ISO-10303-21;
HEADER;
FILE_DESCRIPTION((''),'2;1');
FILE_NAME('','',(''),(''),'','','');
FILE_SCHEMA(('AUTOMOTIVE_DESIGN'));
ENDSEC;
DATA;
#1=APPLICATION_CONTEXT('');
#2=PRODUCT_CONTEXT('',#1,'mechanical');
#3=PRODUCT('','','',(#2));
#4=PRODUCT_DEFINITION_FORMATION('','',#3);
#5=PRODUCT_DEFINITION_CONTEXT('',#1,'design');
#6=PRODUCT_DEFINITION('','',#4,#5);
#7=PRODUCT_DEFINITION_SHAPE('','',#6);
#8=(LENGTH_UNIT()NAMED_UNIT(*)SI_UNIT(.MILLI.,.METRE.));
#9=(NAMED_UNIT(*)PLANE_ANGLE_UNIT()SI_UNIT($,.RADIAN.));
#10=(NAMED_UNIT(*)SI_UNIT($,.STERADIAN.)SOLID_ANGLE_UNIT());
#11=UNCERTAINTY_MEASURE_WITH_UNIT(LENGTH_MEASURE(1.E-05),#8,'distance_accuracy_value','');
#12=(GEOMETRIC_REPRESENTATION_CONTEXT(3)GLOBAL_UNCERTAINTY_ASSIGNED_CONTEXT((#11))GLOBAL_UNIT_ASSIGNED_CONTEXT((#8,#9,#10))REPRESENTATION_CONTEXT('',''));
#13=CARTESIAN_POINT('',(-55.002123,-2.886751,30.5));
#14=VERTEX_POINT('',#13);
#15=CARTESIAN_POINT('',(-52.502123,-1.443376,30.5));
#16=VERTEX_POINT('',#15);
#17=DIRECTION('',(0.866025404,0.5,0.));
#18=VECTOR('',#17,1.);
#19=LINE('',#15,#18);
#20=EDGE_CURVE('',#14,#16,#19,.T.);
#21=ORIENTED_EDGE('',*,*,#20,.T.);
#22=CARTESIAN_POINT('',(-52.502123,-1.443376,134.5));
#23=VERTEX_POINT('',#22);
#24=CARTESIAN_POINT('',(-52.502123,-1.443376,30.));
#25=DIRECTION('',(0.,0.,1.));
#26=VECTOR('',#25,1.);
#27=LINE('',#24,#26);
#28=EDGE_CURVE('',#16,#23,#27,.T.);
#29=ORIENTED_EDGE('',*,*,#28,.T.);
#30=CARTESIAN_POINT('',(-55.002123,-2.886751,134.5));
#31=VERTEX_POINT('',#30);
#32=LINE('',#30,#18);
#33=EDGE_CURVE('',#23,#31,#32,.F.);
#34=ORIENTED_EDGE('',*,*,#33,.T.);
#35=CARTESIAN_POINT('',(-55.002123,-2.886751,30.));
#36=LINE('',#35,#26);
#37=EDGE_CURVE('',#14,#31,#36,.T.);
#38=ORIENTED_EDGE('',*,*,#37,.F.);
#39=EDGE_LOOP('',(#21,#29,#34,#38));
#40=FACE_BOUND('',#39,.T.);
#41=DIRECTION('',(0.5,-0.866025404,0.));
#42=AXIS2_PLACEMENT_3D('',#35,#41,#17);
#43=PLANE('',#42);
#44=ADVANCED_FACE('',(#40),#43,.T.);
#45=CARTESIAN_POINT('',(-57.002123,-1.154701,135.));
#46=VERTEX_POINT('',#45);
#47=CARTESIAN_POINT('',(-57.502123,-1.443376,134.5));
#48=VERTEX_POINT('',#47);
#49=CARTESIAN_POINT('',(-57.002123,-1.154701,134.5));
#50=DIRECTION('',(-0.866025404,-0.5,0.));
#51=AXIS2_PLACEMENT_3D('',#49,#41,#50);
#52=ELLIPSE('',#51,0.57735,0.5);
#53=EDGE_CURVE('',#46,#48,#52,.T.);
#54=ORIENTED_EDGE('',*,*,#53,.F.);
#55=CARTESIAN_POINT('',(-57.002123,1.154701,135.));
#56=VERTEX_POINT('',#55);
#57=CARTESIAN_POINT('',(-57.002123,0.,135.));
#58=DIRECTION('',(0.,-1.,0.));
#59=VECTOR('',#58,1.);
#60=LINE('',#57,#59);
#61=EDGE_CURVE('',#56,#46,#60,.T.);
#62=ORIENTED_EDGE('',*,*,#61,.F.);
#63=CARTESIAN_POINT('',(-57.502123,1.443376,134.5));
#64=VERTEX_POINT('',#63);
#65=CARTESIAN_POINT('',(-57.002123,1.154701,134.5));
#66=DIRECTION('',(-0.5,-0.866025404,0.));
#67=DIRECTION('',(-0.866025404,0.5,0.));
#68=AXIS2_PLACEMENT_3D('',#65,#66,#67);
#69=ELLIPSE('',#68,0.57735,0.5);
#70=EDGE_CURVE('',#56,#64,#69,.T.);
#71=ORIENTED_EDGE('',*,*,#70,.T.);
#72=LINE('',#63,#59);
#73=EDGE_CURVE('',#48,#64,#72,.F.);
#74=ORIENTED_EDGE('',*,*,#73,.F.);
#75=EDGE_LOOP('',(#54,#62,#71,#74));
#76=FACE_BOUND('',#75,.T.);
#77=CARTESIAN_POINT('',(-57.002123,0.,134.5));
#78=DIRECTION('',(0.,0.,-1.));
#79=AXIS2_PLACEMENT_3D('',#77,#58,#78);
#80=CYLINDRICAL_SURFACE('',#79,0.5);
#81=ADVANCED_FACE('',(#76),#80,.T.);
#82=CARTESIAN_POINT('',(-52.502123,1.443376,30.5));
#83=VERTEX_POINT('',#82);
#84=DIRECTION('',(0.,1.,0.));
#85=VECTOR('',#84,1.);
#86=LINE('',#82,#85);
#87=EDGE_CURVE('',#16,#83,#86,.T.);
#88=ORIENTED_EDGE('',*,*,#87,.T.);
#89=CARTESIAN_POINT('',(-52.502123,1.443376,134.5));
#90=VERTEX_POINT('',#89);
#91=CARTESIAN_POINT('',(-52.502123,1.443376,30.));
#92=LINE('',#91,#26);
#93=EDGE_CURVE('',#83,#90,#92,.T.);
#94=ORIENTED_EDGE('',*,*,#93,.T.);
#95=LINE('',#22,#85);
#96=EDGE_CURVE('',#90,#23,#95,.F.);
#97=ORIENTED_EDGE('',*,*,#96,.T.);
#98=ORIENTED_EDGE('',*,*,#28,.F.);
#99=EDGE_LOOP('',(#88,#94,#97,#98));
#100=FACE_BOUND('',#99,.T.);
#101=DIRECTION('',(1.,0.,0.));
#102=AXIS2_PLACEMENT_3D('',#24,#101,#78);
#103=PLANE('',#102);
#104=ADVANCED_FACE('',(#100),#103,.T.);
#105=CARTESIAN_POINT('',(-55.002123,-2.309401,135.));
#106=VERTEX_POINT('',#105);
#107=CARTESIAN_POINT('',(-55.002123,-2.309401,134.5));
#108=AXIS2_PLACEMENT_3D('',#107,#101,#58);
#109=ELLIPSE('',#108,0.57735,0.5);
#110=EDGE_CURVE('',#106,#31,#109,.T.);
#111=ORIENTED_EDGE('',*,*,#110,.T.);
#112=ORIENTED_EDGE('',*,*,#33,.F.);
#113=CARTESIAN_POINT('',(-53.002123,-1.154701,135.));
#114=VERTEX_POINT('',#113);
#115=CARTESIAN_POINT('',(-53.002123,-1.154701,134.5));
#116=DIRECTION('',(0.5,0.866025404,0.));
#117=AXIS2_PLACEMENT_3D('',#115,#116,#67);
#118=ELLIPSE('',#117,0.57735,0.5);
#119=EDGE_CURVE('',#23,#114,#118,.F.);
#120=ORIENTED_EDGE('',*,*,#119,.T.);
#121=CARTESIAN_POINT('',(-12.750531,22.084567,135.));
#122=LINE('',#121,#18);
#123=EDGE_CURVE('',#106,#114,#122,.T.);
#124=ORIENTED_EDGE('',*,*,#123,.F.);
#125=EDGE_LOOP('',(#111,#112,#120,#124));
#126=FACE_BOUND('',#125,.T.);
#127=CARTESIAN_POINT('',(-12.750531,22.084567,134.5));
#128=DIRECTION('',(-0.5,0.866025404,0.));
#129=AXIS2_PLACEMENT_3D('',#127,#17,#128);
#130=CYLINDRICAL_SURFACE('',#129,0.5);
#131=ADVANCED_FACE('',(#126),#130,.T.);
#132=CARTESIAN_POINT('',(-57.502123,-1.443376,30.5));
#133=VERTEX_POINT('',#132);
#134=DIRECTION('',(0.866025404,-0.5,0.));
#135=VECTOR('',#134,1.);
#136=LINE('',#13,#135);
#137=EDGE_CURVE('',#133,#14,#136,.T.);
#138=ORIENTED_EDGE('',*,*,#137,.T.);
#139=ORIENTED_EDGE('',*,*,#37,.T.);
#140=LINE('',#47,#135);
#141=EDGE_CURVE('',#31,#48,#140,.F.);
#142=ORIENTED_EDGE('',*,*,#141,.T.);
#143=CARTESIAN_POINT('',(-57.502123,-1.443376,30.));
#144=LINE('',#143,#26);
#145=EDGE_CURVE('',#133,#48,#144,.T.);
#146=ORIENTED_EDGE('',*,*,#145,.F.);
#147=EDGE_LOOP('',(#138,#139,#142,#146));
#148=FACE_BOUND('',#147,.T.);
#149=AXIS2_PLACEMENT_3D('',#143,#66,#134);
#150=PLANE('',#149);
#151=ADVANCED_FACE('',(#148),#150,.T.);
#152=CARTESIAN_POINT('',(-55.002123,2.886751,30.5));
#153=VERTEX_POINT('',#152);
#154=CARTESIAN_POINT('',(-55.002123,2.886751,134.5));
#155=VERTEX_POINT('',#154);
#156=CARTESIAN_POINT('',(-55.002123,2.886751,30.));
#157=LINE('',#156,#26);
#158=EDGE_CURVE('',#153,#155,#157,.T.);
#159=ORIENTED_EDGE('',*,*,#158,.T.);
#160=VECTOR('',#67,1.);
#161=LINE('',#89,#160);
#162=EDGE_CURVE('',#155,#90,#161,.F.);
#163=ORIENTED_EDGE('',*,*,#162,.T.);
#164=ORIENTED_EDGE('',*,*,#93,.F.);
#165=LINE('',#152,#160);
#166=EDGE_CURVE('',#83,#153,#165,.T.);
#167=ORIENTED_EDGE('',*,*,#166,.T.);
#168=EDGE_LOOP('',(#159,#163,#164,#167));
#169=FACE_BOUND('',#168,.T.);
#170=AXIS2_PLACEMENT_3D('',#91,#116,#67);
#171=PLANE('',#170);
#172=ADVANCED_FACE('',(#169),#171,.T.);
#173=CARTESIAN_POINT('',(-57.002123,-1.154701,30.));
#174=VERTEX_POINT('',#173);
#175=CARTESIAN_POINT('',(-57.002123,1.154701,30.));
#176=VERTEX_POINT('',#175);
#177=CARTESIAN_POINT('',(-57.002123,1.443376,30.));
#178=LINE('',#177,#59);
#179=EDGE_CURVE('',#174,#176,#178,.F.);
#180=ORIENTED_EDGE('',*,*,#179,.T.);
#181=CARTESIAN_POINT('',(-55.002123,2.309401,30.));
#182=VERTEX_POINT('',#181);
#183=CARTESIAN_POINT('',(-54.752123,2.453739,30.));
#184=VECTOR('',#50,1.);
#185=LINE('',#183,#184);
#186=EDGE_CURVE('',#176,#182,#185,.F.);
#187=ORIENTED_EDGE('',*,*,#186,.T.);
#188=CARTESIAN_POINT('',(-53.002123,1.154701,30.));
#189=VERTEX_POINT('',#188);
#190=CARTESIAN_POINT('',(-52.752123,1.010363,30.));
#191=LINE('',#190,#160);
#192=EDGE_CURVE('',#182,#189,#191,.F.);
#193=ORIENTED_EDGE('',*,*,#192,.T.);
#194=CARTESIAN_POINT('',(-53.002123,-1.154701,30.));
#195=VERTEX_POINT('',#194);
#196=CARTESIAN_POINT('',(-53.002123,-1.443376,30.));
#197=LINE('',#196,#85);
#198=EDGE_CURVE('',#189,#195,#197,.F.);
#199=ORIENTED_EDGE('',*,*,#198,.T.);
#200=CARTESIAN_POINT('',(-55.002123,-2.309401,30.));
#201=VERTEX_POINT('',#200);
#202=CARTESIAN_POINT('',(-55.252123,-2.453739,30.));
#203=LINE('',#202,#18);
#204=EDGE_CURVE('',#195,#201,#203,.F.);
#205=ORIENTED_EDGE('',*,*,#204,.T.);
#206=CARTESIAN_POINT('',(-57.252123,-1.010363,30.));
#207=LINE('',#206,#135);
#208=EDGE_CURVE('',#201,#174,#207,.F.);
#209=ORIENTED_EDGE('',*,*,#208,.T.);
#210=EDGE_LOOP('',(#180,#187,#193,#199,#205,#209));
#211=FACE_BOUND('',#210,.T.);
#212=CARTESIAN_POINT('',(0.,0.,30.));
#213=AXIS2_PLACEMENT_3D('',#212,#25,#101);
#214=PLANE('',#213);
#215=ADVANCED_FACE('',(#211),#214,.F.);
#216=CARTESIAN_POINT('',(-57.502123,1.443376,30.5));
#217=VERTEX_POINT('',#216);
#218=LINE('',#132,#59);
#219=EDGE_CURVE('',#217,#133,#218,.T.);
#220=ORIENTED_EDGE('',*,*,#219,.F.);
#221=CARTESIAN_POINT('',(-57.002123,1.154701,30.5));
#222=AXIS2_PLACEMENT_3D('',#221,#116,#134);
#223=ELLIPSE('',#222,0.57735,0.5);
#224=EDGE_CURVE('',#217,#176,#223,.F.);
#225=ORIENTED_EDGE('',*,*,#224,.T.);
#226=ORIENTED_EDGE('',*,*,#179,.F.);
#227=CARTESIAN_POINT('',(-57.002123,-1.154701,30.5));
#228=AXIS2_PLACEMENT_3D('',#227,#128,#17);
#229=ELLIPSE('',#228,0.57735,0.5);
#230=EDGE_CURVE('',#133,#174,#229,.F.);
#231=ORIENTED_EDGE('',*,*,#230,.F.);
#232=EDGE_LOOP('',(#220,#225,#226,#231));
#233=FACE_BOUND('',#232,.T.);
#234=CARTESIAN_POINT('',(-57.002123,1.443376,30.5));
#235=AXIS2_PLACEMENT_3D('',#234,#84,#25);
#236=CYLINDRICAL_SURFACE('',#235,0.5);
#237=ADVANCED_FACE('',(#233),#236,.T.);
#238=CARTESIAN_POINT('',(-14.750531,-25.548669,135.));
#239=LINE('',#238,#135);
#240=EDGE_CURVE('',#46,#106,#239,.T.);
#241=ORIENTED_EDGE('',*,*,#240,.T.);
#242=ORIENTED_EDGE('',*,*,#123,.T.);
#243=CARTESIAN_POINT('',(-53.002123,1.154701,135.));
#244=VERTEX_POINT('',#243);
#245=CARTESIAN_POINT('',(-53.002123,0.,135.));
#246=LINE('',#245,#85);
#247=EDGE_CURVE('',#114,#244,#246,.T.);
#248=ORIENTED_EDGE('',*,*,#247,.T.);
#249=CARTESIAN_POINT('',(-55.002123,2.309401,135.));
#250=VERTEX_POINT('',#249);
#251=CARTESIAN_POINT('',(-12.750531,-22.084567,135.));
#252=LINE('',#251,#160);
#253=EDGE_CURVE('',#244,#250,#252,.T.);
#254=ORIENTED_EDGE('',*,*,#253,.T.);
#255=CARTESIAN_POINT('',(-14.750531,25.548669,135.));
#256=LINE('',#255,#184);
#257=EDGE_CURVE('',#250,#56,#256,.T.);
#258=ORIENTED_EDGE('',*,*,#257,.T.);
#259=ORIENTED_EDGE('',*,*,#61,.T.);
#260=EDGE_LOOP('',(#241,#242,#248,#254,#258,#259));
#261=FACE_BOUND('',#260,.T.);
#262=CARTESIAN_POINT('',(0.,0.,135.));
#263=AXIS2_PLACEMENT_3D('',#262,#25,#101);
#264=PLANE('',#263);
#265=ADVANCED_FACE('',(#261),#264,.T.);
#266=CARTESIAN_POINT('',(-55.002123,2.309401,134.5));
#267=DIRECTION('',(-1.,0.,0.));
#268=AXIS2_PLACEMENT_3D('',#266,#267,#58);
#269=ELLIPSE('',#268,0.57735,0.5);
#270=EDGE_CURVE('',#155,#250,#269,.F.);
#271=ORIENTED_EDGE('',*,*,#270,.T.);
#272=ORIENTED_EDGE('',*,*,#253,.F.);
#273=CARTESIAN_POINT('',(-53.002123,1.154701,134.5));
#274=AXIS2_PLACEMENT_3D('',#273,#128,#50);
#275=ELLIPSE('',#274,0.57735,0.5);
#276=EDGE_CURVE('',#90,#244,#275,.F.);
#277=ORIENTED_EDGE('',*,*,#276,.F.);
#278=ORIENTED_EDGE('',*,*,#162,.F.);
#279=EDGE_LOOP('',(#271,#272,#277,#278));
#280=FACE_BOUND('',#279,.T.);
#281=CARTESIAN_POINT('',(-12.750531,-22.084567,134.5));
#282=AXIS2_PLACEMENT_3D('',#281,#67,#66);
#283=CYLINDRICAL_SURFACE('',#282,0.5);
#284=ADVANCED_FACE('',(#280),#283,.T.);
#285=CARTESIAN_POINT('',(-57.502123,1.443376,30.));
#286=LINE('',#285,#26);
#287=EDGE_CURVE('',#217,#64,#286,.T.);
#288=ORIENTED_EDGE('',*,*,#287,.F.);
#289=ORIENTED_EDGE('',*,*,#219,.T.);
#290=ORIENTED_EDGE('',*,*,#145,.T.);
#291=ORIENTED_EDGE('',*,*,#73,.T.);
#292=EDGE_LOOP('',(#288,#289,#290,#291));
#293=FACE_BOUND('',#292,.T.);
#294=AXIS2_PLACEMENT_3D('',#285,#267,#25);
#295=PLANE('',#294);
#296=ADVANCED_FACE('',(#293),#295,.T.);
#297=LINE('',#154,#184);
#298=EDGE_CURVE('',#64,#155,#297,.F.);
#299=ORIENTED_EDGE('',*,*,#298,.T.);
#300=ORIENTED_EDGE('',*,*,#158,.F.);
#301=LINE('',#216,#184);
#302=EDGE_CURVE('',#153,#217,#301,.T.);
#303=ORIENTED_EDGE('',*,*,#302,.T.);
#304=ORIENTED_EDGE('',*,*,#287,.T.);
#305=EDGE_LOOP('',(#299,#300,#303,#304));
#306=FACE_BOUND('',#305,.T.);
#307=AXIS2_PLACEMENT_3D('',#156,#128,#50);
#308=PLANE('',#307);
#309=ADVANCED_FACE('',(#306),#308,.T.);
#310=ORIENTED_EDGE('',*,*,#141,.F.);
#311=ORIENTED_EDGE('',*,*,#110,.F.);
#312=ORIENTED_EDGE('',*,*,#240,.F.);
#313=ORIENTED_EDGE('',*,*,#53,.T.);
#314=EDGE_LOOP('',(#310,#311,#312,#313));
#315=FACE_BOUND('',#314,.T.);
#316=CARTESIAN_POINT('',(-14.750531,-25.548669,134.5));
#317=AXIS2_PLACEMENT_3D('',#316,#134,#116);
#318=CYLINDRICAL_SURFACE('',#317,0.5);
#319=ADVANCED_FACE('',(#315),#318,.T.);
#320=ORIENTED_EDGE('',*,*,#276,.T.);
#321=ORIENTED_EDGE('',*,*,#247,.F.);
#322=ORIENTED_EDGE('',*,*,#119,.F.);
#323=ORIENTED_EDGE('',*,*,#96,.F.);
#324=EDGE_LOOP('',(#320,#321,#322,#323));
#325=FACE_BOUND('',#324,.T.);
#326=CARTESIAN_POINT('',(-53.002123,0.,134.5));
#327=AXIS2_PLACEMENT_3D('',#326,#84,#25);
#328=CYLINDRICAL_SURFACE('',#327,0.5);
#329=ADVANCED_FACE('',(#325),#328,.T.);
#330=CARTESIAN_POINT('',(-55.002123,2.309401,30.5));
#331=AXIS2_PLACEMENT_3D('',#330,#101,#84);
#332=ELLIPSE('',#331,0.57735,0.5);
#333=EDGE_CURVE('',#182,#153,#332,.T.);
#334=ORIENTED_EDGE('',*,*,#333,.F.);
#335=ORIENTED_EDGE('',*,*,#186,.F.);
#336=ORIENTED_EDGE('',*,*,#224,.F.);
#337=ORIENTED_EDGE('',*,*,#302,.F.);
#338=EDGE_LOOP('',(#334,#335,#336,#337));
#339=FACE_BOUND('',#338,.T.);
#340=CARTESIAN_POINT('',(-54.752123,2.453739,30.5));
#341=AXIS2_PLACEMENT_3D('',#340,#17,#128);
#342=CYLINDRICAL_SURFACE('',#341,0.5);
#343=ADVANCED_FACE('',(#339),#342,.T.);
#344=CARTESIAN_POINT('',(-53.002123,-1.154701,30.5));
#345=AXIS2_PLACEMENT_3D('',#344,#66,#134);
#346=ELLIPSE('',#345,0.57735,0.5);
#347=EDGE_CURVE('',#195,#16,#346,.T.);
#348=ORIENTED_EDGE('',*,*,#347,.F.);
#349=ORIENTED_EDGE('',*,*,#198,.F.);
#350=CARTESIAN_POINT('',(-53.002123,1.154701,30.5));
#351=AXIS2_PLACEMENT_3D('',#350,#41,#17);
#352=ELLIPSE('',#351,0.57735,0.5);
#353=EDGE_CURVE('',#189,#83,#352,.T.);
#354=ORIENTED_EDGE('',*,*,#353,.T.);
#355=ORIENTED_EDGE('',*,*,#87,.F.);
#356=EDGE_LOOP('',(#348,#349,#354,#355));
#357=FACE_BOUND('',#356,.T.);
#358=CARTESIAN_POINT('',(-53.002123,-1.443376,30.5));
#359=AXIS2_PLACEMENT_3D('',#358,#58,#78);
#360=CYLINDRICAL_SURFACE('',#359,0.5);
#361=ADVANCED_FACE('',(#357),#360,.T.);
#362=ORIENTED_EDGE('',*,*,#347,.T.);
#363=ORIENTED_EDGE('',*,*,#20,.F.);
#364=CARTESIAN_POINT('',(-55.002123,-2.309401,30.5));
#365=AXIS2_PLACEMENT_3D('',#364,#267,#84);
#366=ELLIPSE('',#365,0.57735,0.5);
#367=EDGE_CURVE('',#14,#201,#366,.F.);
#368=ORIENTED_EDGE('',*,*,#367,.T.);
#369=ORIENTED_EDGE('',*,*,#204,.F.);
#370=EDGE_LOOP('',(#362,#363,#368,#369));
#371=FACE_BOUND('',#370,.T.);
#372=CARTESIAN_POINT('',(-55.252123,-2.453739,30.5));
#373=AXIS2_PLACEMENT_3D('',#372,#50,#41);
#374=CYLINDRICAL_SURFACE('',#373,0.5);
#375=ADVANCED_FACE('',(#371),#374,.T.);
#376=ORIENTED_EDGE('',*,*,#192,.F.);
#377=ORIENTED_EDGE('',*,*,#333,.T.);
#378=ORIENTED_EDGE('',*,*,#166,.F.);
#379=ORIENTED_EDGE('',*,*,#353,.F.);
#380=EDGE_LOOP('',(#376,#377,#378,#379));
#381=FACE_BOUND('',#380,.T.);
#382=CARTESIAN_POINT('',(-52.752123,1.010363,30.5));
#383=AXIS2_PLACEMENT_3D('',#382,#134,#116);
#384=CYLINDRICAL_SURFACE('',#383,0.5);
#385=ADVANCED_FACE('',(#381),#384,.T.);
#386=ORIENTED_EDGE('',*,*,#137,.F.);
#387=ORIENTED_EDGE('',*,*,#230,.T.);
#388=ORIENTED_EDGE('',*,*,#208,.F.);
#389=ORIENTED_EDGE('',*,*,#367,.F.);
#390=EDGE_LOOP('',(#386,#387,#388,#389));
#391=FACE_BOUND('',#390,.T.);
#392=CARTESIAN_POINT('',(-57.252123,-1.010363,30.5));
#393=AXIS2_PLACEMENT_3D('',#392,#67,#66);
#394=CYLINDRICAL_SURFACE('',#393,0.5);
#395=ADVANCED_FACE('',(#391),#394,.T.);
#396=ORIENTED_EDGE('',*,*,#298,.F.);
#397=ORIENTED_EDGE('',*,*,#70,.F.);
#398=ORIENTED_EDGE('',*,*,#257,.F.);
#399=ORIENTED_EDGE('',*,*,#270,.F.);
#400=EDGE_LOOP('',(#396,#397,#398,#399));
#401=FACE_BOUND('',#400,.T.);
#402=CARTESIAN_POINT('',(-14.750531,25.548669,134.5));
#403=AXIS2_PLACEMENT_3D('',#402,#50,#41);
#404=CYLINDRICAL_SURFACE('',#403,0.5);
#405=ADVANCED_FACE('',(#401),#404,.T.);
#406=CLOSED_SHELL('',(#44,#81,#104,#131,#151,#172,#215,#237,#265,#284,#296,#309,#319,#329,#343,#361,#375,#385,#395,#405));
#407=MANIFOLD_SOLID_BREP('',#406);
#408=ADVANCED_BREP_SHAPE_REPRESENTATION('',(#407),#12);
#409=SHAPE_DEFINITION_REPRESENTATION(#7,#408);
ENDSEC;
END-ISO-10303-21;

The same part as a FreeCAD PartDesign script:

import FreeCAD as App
import Part
import Sketcher
from FreeCAD import Vector
Q = App.Units.Quantity


def edges_at(feature, points):
    """Names of the edges that pass closest to the given points."""
    edges = feature.Shape.Edges
    near = lambda p: min(range(len(edges)), key=lambda i: edges[i].distToShape(Part.Vertex(*p))[0])
    return sorted({f"Edge{near(p) + 1}" for p in points})


def add_polygon(sketch, points):
    """Adds a closed chain of lines whose ends are joined by coincident constraints."""
    first, n = sketch.GeometryCount, len(points)
    for a, b in zip(points, points[1:] + points[:1]):
        sketch.addGeometry(Part.LineSegment(App.Vector(*a, 0), App.Vector(*b, 0)), False)
    for i in range(n):
        sketch.addConstraint(Sketcher.Constraint("Coincident", first + i, 2, first + (i + 1) % n, 1))

doc = App.newDocument("Part")
params = doc.addObject("Spreadsheet::Sheet", "Params")
for row, (alias, value) in enumerate([
    ("pad1_length", "105 mm"),
    ("fillet_radius", "0.5 mm"),
], start=1):
    params.set(f"A{row}", alias)
    params.set(f"B{row}", "=" + value)
    params.setAlias(f"B{row}", alias)

body = doc.addObject("PartDesign::Body", "Body")

# Sketch on XY plane
sketch1 = body.newObject("Sketcher::SketchObject", "Sketch")
sketch1.AttachmentSupport = (doc.getObject("XY_Plane"), [""])
sketch1.MapMode = "FlatFace"
sketch1.AttachmentOffset = App.Placement(Vector(0, 0, 135), App.Rotation())
add_polygon(sketch1, [(-55.002123, 2.886751), (-57.502123, 1.443376), (-57.502123, -1.443376), (-55.002123, -2.886751), (-52.502123, -1.443376), (-52.502123, 1.443376)])  # lines 0-5
sketch1.addConstraint(Sketcher.Constraint("Vertical", 1))
sketch1.addConstraint(Sketcher.Constraint("Vertical", 4))
sketch1.addConstraint(Sketcher.Constraint("Symmetric", 2, 2, 5, 2, -1))
sketch1.addConstraint(Sketcher.Constraint("Parallel", 0, 3))
sketch1.addConstraint(Sketcher.Constraint("Parallel", 2, 5))
sketch1.addConstraint(Sketcher.Constraint("Horizontal", 1, 2, 3, 2))
sketch1.addConstraint(Sketcher.Constraint("Horizontal", 0, 2, 4, 2))
sketch1.addConstraint(Sketcher.Constraint("Angle", 0, Q("-150 deg")))
sketch1.addConstraint(Sketcher.Constraint("DistanceX", 1, 2, 3, 2, 5.0))
sketch1.addConstraint(Sketcher.Constraint("DistanceY", 1, 2, 1, 1, 2.886751))
sketch1.addConstraint(Sketcher.Constraint("DistanceX", 0, 2, -1, 1, 57.502123))
pad1 = body.newObject("PartDesign::Pad", "Pad")
pad1.Profile = sketch1
pad1.setExpression("Length", "Params.pad1_length")
pad1.Reversed = True
doc.recompute()

fillet = body.newObject("PartDesign::Fillet", "Fillet")
fillet.Base = (pad1, edges_at(pad1, [
    (-57.502, 0, 30),
    (-56.252, -2.165, 30),
    (-53.752, -2.165, 30),
    (-52.502, 0, 30),
    (-53.752, 2.165, 30),
    (-52.502, 0, 135),
    (-53.752, -2.165, 135),
    (-56.252, -2.165, 135),
    (-57.502, 0, 135),
    (-56.252, 2.165, 135),
    (-53.752, 2.165, 135),
    (-56.252, 2.165, 30),
]))
fillet.setExpression("Radius", "Params.fillet_radius")

doc.recompute()
